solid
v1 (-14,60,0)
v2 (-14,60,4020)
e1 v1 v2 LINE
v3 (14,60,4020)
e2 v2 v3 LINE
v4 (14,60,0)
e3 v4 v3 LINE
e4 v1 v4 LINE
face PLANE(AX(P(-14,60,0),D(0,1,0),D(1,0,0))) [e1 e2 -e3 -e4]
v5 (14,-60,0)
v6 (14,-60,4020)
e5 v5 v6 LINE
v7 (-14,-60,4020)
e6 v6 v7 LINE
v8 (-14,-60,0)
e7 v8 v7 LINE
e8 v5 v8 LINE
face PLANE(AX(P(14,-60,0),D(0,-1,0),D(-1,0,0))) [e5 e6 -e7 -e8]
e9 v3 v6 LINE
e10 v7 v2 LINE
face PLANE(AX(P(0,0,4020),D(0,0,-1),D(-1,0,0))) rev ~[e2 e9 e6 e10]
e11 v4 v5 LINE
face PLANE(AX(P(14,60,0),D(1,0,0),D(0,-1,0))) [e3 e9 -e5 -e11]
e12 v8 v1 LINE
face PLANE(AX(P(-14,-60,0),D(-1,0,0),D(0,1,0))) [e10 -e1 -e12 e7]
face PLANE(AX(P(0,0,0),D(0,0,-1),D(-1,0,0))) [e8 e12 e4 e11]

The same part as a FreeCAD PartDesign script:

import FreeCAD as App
import Part
import Sketcher
from FreeCAD import Vector
Q = App.Units.Quantity

doc = App.newDocument("Part")
body = doc.addObject("PartDesign::Body", "Body")

# Sketch on XY plane
sketch1 = body.newObject("Sketcher::SketchObject", "Sketch")
sketch1.AttachmentSupport = (doc.getObject("XY_Plane"), [""])
sketch1.MapMode = "FlatFace"
sketch1.addGeometry(Part.LineSegment(Vector(14, 60, 0), Vector(14, -60, 0)), False)
sketch1.addGeometry(Part.LineSegment(Vector(14, -60, 0), Vector(-14, -60, 0)), False)
sketch1.addGeometry(Part.LineSegment(Vector(-14, -60, 0), Vector(-14, 60, 0)), False)
sketch1.addGeometry(Part.LineSegment(Vector(-14, 60, 0), Vector(14, 60, 0)), False)
sketch1.addConstraint(Sketcher.Constraint("Coincident", 0, 2, 1, 1))
sketch1.addConstraint(Sketcher.Constraint("Coincident", 1, 2, 2, 1))
sketch1.addConstraint(Sketcher.Constraint("Coincident", 2, 2, 3, 1))
sketch1.addConstraint(Sketcher.Constraint("Coincident", 3, 2, 0, 1))
sketch1.addConstraint(Sketcher.Constraint("Vertical", 0))
sketch1.addConstraint(Sketcher.Constraint("Horizontal", 1))
sketch1.addConstraint(Sketcher.Constraint("Vertical", 2))
sketch1.addConstraint(Sketcher.Constraint("Horizontal", 3))
sketch1.addConstraint(Sketcher.Constraint("Symmetric", 0, 2, 2, 2, -1, 1))
sketch1.addConstraint(Sketcher.Constraint("DistanceX", 1, 2, 1, 1, Q("28 mm")))
sketch1.addConstraint(Sketcher.Constraint("DistanceY", 0, 2, 0, 1, Q("120 mm")))
pad1 = body.newObject("PartDesign::Pad", "Pad")
pad1.Profile = sketch1
pad1.Length = 4020

doc.recompute()
